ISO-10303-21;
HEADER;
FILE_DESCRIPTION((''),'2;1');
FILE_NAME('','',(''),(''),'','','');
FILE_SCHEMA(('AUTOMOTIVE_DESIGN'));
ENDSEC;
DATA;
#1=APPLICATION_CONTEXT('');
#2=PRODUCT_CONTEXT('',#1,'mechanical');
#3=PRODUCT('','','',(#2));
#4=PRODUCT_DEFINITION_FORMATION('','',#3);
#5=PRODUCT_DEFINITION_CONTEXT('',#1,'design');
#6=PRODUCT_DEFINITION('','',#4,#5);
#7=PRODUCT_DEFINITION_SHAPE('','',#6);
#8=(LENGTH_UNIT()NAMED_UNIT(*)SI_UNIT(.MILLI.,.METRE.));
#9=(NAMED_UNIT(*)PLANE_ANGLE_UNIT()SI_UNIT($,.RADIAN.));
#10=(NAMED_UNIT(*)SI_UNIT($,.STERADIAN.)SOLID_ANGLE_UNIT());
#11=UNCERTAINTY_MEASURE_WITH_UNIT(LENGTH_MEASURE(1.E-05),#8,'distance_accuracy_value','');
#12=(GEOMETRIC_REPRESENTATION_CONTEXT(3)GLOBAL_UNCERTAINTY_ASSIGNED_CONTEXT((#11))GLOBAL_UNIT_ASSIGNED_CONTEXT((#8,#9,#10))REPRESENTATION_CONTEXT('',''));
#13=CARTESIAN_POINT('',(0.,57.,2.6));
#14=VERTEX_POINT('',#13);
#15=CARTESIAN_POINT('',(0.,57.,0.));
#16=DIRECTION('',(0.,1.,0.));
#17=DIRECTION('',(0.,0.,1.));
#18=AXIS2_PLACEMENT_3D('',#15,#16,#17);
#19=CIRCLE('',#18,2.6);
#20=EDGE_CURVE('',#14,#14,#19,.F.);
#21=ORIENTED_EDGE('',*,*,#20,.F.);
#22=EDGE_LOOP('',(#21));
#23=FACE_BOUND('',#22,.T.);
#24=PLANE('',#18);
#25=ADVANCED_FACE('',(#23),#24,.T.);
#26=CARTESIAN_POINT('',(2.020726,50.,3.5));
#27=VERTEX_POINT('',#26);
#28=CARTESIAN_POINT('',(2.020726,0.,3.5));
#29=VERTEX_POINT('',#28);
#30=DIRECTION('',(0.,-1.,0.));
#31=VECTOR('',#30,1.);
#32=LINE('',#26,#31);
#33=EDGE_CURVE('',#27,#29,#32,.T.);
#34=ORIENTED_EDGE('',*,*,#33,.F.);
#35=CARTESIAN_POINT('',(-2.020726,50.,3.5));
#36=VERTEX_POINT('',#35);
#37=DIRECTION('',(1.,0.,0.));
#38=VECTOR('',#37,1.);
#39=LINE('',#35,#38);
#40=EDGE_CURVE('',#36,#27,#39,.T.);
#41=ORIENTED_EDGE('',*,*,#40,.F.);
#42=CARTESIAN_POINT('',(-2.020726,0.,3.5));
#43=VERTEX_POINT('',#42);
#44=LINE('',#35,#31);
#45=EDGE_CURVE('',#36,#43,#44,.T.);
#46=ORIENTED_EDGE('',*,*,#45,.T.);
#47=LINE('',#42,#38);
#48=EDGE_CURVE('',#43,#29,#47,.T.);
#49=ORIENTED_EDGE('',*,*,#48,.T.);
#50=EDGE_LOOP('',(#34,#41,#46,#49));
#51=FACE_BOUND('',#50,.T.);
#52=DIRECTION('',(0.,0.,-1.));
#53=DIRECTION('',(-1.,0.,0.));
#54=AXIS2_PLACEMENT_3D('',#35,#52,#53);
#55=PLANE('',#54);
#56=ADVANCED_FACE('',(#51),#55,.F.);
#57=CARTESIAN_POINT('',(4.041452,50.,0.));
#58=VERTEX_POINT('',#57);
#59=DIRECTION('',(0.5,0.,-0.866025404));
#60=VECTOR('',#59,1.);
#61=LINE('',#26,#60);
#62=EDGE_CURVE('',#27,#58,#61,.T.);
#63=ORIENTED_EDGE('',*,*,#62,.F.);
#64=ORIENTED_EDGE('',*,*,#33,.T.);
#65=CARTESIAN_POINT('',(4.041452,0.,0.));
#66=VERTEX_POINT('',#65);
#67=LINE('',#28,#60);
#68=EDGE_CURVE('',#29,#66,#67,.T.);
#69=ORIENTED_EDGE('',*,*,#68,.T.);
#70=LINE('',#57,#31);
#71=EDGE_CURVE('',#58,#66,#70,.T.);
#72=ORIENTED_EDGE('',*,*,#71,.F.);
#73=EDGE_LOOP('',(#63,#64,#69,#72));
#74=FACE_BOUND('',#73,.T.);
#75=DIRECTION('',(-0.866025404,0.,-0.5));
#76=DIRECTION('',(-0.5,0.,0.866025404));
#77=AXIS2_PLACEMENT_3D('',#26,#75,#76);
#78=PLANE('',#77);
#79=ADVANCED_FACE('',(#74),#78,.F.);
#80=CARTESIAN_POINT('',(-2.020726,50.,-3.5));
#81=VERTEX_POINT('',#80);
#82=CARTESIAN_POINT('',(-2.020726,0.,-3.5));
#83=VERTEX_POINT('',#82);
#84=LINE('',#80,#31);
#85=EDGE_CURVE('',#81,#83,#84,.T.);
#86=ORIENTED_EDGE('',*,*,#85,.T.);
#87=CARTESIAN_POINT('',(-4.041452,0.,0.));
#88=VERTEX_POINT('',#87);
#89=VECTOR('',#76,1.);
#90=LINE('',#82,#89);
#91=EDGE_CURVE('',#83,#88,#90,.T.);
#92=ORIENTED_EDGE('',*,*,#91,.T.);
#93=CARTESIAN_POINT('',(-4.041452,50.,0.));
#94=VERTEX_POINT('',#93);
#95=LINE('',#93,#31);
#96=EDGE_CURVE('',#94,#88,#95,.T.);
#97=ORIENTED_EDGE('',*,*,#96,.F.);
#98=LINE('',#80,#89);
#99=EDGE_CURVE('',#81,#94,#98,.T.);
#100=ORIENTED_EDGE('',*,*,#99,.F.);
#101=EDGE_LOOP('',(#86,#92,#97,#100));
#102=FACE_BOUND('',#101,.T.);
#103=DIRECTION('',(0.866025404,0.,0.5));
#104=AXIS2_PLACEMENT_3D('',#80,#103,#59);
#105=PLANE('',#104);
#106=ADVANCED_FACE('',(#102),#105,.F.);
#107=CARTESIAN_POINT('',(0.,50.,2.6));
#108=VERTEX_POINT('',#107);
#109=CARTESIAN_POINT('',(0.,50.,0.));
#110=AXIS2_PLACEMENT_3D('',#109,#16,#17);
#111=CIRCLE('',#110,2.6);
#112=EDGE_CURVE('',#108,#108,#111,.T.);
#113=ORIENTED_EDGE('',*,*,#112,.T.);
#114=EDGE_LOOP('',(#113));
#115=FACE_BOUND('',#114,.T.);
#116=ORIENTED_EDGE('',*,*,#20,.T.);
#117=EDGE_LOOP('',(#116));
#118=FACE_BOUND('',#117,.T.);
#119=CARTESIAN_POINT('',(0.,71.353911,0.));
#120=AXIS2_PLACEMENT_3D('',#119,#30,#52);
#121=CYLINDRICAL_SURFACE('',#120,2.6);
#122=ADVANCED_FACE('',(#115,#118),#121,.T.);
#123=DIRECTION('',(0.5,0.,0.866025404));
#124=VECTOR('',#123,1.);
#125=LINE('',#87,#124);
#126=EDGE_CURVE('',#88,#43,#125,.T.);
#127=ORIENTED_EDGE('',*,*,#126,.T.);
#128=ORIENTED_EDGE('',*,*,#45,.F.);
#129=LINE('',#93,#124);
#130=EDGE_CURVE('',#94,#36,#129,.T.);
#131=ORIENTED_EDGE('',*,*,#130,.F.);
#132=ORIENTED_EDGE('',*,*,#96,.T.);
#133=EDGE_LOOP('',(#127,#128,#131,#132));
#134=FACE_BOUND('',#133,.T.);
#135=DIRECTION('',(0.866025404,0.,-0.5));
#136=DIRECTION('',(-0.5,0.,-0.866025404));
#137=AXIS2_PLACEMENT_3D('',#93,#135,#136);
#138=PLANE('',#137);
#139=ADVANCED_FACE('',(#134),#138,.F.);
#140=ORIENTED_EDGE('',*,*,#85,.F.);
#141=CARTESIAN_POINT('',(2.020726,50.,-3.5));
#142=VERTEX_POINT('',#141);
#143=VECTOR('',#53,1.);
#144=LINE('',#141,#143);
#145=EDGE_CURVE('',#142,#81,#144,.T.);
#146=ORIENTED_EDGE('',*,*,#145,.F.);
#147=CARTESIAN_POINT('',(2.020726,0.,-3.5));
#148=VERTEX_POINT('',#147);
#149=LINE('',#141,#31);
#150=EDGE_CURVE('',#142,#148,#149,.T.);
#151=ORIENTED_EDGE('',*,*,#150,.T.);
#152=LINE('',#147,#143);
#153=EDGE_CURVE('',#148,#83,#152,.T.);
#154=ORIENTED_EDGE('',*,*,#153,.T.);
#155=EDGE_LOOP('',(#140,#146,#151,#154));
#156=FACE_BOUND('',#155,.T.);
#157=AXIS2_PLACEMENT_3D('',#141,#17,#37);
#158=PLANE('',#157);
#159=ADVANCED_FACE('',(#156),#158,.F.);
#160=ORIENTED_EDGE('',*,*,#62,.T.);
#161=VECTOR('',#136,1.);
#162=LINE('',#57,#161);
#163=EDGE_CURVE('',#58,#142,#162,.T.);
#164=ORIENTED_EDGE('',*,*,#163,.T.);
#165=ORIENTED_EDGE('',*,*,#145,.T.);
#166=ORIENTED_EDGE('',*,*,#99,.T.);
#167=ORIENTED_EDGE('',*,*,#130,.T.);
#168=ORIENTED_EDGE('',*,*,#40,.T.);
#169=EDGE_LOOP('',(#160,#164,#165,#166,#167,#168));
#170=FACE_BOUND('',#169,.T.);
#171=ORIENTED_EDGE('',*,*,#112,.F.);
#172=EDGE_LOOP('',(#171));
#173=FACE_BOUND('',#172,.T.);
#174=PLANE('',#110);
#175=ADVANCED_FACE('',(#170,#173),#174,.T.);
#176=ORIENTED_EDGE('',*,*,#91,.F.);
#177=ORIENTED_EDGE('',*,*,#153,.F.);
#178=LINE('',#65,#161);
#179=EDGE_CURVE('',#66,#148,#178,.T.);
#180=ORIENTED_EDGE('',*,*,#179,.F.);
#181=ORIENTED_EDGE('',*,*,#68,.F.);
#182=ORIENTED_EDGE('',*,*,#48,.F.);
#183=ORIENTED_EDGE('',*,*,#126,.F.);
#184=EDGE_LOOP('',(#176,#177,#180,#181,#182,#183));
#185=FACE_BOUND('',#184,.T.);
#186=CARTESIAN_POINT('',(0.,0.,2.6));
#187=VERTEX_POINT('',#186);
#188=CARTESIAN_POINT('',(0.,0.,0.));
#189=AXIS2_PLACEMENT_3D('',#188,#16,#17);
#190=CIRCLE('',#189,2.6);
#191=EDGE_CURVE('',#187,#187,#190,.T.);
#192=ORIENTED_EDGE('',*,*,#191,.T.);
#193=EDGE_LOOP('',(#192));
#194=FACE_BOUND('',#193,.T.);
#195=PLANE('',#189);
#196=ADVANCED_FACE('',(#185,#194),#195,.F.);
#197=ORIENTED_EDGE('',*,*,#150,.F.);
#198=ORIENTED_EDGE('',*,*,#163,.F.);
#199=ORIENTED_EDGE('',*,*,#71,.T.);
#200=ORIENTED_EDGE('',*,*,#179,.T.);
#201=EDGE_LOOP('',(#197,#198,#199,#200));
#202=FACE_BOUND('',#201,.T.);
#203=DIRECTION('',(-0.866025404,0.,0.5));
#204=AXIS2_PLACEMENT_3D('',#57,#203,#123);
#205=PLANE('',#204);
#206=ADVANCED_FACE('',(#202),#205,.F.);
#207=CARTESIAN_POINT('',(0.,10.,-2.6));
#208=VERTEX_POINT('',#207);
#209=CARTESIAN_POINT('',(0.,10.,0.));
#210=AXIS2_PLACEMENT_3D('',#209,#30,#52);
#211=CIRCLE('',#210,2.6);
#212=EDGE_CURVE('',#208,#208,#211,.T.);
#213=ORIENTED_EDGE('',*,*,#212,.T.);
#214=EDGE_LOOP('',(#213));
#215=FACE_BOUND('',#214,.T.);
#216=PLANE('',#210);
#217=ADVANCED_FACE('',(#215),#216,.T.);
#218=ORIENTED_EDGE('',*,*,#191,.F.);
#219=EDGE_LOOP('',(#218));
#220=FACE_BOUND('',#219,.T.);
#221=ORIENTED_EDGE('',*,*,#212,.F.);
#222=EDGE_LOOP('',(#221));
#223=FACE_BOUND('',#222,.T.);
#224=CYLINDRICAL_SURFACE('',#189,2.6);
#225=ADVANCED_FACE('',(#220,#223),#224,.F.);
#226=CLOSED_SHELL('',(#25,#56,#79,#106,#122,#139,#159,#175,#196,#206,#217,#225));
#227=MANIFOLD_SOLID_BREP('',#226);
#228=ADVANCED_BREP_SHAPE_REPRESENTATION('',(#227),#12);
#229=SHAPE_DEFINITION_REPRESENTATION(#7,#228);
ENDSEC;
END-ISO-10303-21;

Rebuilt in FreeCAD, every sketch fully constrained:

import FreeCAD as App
import Part
import Sketcher

V = App.Vector
Q = App.Units.Quantity

doc = App.newDocument("Part")
body = doc.addObject("PartDesign::Body", "Body")

# Sketch on XZ plane
sketch1 = body.newObject("Sketcher::SketchObject", "Sketch")
sketch1.AttachmentSupport = (doc.getObject("XZ_Plane"), [""])
sketch1.MapMode = "FlatFace"
sketch1.addGeometry([
    Part.LineSegment(V(4.041452, 0, 0), V(2.020726, -3.5, 0)),  # 0
    Part.LineSegment(V(2.020726, -3.5, 0), V(-2.020726, -3.5, 0)),  # 1
    Part.LineSegment(V(-2.020726, -3.5, 0), V(-4.041452, 0, 0)),  # 2
    Part.LineSegment(V(-4.041452, 0, 0), V(-2.020726, 3.5, 0)),  # 3
    Part.LineSegment(V(-2.020726, 3.5, 0), V(2.020726, 3.5, 0)),  # 4
    Part.LineSegment(V(2.020726, 3.5, 0), V(4.041452, 0, 0)),  # 5
], False)
sketch1.addConstraint([
    Sketcher.Constraint("Coincident", 0, 2, 1, 1),
    Sketcher.Constraint("Coincident", 1, 2, 2, 1),
    Sketcher.Constraint("Coincident", 2, 2, 3, 1),
    Sketcher.Constraint("Coincident", 3, 2, 4, 1),
    Sketcher.Constraint("Coincident", 4, 2, 5, 1),
    Sketcher.Constraint("Coincident", 5, 2, 0, 1),
    Sketcher.Constraint("Horizontal", 1),
    Sketcher.Constraint("Horizontal", 4),
    Sketcher.Constraint("Symmetric", 0, 2, 3, 2, -1, 1),
    Sketcher.Constraint("Symmetric", 2, 2, 5, 2, -1, 1),
    Sketcher.Constraint("PointOnObject", 2, 2, -1),
    Sketcher.Constraint("Parallel", 2, 5),
    Sketcher.Constraint("Vertical", 1, 2, 3, 2),
    Sketcher.Constraint("Angle", 0, Q("-120 deg")),
    Sketcher.Constraint("DistanceY", 1, 2, 3, 2, 7.0),
    Sketcher.Constraint("DistanceX", 1, 2, 1, 1, 4.041452),
])
pad1 = body.newObject("PartDesign::Pad", "Pad")
pad1.Profile = sketch1
pad1.Length = 50
pad1.Reversed = True

# Sketch on XZ plane
sketch2 = body.newObject("Sketcher::SketchObject", "Sketch001")
sketch2.AttachmentSupport = (doc.getObject("XZ_Plane"), [""])
sketch2.MapMode = "FlatFace"
sketch2.AttachmentOffset = App.Placement(V(0, 0, -50), App.Rotation())
sketch2.addGeometry(Part.Circle(V(0, 0, 0), V(0, 0, 1), 2.6), False)
sketch2.addConstraint([
    Sketcher.Constraint("Coincident", 0, 3, -1, 1),
    Sketcher.Constraint("Diameter", 0, 5.2),
])
pocket1 = body.newObject("PartDesign::Pocket", "Pocket")
pocket1.Profile = sketch2
pocket1.Type = "ThroughAll"
pocket1.Reversed = True

# Sketch on XZ plane
sketch3 = body.newObject("Sketcher::SketchObject", "Sketch002")
sketch3.AttachmentSupport = (doc.getObject("XZ_Plane"), [""])
sketch3.MapMode = "FlatFace"
sketch3.AttachmentOffset = App.Placement(V(0, 0, -10), App.Rotation())
sketch3.addGeometry(Part.Circle(V(0, 0, 0), V(0, 0, 1), 2.6), False)
sketch3.addConstraint([
    Sketcher.Constraint("Coincident", 0, 3, -1, 1),
    Sketcher.Constraint("Diameter", 0, 5.2),
])
pad2 = body.newObject("PartDesign::Pad", "Pad001")
pad2.Profile = sketch3
pad2.Length = 47
pad2.Reversed = True

doc.recompute()
